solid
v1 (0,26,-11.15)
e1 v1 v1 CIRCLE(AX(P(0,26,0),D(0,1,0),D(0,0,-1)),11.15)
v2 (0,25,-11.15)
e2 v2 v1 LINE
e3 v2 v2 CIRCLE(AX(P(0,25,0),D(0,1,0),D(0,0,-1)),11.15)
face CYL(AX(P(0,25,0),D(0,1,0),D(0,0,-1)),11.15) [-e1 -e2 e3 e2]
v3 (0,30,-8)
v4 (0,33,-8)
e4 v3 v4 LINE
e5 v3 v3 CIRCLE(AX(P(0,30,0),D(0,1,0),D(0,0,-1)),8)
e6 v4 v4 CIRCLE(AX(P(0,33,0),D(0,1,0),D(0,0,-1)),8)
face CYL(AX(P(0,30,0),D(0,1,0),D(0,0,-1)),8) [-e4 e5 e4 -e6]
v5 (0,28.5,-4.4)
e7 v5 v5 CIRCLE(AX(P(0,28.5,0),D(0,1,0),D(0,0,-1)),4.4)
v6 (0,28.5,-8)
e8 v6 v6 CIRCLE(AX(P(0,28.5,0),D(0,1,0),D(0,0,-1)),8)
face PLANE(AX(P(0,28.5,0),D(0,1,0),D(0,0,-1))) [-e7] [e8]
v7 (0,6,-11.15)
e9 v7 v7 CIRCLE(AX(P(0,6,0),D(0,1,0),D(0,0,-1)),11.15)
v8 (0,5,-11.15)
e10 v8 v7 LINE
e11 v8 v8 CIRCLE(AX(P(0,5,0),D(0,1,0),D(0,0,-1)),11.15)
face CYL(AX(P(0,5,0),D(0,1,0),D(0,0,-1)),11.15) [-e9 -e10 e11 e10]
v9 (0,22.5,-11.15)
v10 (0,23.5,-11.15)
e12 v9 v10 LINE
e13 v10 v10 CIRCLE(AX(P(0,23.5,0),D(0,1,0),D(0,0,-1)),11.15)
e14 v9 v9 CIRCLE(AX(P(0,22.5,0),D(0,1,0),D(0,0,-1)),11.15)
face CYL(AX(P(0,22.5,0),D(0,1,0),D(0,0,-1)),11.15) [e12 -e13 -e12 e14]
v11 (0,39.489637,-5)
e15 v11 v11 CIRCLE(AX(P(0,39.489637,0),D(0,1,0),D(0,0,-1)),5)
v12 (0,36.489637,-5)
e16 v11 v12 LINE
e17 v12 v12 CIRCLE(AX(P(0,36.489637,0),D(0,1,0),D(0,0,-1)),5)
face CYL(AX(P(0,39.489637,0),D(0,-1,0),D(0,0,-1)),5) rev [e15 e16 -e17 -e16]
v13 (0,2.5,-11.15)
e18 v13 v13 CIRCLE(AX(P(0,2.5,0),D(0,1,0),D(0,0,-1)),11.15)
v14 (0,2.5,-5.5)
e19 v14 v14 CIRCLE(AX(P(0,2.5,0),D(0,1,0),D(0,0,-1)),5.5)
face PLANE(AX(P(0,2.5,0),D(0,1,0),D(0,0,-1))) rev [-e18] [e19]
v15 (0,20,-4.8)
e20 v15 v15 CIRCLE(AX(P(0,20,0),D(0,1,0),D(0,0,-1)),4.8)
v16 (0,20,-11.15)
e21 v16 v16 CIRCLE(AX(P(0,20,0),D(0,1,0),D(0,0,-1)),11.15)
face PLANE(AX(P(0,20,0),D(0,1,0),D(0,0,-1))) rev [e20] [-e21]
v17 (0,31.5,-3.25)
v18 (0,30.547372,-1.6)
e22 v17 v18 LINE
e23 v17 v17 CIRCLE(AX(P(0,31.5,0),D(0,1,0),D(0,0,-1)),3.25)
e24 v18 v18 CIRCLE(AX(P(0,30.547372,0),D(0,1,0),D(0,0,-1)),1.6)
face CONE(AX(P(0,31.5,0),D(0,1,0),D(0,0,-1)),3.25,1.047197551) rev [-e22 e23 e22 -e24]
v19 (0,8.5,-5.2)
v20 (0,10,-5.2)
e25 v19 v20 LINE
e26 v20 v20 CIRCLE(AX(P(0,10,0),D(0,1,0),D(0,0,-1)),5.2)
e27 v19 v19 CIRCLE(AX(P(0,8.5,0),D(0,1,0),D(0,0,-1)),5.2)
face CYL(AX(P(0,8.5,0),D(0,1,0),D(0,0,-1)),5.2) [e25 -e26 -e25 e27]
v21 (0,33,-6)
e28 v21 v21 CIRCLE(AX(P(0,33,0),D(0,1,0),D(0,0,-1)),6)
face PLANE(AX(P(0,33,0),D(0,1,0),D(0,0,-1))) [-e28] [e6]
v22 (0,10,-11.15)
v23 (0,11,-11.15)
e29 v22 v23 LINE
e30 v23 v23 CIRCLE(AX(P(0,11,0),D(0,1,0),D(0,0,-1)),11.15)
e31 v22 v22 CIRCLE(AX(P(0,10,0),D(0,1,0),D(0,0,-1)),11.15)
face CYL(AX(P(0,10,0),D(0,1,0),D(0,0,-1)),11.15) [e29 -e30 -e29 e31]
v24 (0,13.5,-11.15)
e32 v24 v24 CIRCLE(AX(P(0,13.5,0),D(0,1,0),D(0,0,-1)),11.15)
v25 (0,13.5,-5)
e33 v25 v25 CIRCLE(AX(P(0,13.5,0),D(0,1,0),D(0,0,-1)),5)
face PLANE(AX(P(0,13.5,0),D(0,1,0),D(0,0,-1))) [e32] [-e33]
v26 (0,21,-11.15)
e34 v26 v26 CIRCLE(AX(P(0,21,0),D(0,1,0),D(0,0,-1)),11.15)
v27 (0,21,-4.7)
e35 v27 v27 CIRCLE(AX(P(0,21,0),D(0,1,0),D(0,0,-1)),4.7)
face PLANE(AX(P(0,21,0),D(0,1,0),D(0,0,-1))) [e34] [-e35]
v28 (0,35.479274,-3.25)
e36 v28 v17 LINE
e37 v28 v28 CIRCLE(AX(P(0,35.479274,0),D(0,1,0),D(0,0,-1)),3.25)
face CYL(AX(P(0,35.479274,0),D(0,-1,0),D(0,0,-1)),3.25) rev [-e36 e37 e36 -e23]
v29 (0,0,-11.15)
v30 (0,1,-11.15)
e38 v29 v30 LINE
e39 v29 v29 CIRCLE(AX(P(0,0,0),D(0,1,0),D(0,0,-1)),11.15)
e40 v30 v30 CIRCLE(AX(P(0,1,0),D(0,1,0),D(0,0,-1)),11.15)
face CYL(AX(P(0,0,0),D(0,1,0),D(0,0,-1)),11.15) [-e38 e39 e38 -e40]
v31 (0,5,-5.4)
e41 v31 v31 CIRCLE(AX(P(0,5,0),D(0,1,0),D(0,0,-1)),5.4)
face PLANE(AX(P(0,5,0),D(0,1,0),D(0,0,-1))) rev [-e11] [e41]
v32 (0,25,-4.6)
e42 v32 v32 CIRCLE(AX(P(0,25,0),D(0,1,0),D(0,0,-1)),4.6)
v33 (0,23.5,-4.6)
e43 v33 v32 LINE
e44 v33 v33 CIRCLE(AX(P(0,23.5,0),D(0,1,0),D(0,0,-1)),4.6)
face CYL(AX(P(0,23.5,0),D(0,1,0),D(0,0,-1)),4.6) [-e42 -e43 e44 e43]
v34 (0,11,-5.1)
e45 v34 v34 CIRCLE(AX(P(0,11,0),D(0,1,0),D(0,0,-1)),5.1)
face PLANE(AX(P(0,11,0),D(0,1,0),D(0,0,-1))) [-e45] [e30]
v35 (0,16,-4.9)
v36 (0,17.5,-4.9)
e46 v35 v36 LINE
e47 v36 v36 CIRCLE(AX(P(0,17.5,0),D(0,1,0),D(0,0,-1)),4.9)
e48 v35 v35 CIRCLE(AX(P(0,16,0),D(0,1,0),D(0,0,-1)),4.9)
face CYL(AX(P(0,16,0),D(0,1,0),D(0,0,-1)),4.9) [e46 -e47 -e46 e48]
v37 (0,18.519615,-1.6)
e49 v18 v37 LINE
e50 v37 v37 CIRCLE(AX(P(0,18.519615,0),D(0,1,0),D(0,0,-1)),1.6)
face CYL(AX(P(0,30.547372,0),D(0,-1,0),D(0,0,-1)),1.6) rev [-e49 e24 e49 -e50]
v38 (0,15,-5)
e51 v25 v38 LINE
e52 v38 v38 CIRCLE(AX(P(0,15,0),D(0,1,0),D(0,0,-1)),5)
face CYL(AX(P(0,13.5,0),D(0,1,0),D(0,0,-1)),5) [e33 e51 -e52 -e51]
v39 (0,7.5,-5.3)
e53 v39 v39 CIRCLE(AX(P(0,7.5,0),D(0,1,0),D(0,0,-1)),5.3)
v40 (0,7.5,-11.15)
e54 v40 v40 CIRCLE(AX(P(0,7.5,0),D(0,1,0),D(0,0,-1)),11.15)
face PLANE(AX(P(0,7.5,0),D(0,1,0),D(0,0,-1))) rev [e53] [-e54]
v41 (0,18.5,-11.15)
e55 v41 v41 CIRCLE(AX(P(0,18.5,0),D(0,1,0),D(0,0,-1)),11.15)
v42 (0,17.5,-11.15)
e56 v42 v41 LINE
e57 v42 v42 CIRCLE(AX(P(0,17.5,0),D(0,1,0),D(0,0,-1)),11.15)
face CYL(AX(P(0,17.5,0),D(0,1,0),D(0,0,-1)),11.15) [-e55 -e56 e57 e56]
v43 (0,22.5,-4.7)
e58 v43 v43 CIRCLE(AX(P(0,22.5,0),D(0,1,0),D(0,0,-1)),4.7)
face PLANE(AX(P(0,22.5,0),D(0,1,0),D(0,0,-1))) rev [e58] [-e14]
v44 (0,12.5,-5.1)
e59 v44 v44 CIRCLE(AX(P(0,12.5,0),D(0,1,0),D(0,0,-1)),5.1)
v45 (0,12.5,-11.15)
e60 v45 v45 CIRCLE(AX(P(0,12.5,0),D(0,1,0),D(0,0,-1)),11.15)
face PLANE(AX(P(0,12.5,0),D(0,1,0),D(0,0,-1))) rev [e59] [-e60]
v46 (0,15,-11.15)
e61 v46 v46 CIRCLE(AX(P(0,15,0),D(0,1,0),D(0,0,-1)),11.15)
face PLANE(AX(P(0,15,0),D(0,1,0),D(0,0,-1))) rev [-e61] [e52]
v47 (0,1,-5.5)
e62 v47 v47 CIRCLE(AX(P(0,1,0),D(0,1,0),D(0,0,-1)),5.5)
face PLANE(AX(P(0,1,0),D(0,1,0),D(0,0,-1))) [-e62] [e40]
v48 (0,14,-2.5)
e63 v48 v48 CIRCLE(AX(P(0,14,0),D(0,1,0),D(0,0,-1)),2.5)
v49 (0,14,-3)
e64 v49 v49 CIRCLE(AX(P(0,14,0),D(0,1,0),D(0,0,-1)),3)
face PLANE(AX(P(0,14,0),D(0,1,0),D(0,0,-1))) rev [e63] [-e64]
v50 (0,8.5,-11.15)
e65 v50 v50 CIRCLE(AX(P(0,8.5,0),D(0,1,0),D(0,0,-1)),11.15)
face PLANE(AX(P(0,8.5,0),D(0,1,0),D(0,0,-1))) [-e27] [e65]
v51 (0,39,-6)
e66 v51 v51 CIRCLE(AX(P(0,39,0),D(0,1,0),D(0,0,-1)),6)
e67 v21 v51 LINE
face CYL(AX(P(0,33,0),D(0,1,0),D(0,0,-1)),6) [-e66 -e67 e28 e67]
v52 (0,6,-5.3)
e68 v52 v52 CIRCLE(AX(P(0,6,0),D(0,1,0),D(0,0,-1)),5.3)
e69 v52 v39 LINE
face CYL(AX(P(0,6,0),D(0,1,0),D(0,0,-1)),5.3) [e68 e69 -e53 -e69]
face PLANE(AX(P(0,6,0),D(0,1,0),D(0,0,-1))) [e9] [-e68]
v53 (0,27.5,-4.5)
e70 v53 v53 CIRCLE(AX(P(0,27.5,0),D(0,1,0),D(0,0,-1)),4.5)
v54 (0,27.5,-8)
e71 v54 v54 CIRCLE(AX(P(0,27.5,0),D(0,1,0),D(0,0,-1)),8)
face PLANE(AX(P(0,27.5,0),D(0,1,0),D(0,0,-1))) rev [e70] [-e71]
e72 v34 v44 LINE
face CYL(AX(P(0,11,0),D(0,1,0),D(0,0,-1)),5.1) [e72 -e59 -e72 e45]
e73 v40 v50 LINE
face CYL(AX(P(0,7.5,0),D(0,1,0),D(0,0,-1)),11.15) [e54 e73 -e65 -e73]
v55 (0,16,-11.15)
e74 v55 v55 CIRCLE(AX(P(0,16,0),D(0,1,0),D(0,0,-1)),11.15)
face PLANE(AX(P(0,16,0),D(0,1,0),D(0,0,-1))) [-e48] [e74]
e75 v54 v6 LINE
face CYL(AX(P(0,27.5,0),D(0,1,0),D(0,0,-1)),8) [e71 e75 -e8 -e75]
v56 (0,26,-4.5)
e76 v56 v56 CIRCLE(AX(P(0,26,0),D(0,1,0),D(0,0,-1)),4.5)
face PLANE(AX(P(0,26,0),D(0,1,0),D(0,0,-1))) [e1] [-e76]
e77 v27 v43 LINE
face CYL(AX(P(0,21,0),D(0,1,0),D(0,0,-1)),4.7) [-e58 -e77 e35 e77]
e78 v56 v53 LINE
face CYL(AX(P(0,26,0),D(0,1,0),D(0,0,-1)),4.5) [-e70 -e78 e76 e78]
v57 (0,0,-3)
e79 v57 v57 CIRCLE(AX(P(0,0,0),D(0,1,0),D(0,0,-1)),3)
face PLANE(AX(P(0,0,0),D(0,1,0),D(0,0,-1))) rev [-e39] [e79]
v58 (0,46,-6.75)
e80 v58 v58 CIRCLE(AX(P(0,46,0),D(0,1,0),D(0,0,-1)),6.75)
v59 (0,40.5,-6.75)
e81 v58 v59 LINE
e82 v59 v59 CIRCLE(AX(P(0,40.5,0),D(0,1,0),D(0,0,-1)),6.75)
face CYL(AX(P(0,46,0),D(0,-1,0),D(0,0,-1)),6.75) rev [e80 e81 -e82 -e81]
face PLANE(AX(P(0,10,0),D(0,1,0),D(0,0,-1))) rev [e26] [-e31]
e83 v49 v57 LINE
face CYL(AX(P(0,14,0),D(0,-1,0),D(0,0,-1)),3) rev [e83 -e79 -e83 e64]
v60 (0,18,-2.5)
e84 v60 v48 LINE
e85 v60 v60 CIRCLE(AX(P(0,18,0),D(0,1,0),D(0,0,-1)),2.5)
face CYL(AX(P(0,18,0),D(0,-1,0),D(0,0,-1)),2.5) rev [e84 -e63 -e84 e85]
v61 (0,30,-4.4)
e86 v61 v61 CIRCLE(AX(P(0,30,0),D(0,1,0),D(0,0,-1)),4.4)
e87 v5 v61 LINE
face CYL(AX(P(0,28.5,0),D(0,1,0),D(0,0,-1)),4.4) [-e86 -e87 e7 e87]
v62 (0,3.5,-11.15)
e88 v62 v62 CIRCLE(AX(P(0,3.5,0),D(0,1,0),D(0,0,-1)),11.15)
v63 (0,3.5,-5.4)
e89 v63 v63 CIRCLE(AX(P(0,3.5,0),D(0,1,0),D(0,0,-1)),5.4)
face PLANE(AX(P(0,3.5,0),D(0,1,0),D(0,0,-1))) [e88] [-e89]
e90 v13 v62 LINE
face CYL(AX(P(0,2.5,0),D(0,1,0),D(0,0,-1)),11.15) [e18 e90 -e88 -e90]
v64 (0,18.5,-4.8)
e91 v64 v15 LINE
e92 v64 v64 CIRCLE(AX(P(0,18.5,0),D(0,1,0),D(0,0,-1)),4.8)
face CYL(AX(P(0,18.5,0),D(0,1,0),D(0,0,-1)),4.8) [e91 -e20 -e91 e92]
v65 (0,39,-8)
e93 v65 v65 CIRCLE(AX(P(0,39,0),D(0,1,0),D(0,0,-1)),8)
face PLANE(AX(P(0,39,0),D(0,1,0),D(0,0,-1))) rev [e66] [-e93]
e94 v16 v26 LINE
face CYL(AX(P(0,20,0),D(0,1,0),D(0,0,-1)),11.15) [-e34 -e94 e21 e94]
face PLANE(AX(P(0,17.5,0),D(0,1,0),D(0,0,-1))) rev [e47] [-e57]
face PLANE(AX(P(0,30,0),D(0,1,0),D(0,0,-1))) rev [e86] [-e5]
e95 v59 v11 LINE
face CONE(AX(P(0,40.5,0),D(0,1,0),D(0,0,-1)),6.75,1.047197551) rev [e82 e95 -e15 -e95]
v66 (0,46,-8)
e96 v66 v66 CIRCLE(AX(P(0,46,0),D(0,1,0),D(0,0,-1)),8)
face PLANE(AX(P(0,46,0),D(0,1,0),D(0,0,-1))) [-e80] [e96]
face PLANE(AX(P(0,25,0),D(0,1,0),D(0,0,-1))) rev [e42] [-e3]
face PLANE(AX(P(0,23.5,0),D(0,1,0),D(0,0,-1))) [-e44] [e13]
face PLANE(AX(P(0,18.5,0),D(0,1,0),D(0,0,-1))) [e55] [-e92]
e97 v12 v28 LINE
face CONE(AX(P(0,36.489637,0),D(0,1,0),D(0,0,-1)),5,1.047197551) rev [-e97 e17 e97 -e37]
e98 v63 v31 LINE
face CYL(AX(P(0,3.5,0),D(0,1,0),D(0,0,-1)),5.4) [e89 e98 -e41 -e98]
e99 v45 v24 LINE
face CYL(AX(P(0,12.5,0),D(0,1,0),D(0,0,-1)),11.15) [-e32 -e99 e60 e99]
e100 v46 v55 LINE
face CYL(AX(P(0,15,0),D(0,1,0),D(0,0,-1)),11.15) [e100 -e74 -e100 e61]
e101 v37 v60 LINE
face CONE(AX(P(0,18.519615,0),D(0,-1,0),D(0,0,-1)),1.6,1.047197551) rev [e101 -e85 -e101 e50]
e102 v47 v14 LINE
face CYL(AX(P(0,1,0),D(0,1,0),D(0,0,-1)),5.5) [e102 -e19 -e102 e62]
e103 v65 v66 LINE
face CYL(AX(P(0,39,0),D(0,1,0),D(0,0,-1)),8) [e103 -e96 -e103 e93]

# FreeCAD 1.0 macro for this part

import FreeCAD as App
import Part
import Sketcher

V = App.Vector
Q = App.Units.Quantity


def add_polygon(sketch, points):
    """Adds a closed chain of lines whose ends are joined by coincident constraints."""
    first, n = sketch.GeometryCount, len(points)
    for a, b in zip(points, points[1:] + points[:1]):
        sketch.addGeometry(Part.LineSegment(App.Vector(*a, 0), App.Vector(*b, 0)), False)
    for i in range(n):
        sketch.addConstraint(Sketcher.Constraint("Coincident", first + i, 2, first + (i + 1) % n, 1))

doc = App.newDocument("Part")
body = doc.addObject("PartDesign::Body", "Body")

# Sketch on XY plane
sketch1 = body.newObject("Sketcher::SketchObject", "Sketch")
sketch1.AttachmentSupport = (doc.getObject("XY_Plane"), [""])
sketch1.MapMode = "FlatFace"
add_polygon(sketch1, [(0, 0), (11.2, 0), (11.2, 1), (5.5, 1), (5.5, 2.5), (11.2, 2.5), (11.2, 3.5), (5.4, 3.5), (5.4, 5), (11.2, 5), (11.2, 6), (5.3, 6), (5.3, 7.5), (11.2, 7.5), (11.2, 8.5), (5.2, 8.5), (5.2, 10), (11.2, 10), (11.2, 11), (5.1, 11), (5.1, 12.5), (11.2, 12.5), (11.2, 13.5), (5, 13.5), (5, 15), (11.2, 15), (11.2, 16), (4.9, 16), (4.9, 17.5), (11.2, 17.5), (11.2, 18.5), (4.8, 18.5), (4.8, 20), (11.2, 20), (11.2, 21), (4.7, 21), (4.7, 22.5), (11.2, 22.5), (11.2, 23.5), (4.6, 23.5), (4.6, 25), (11.2, 25), (11.2, 26), (4.5, 26), (4.5, 27.5), (8, 27.5), (8, 28.5), (4.4, 28.5), (4.4, 30), (8, 30), (8, 33), (6, 33), (6, 39), (8, 39), (8, 46), (0, 46)])  # lines 0-55
sketch1.addConstraint([
    Sketcher.Constraint("Horizontal", 0),
    Sketcher.Constraint("Vertical", 1),
    Sketcher.Constraint("Horizontal", 2),
    Sketcher.Constraint("Vertical", 3),
    Sketcher.Constraint("Horizontal", 4),
    Sketcher.Constraint("Vertical", 5),
    Sketcher.Constraint("Horizontal", 6),
    Sketcher.Constraint("Vertical", 7),
    Sketcher.Constraint("Horizontal", 8),
    Sketcher.Constraint("Vertical", 9),
    Sketcher.Constraint("Horizontal", 10),
    Sketcher.Constraint("Vertical", 11),
    Sketcher.Constraint("Horizontal", 12),
    Sketcher.Constraint("Vertical", 13),
    Sketcher.Constraint("Horizontal", 14),
    Sketcher.Constraint("Vertical", 15),
    Sketcher.Constraint("Horizontal", 16),
    Sketcher.Constraint("Vertical", 17),
    Sketcher.Constraint("Horizontal", 18),
    Sketcher.Constraint("Vertical", 19),
    Sketcher.Constraint("Horizontal", 20),
    Sketcher.Constraint("Vertical", 21),
    Sketcher.Constraint("Horizontal", 22),
    Sketcher.Constraint("Vertical", 23),
    Sketcher.Constraint("Horizontal", 24),
    Sketcher.Constraint("Vertical", 25),
    Sketcher.Constraint("Horizontal", 26),
    Sketcher.Constraint("Vertical", 27),
    Sketcher.Constraint("Horizontal", 28),
    Sketcher.Constraint("Vertical", 29),
    Sketcher.Constraint("Horizontal", 30),
    Sketcher.Constraint("Vertical", 31),
    Sketcher.Constraint("Horizontal", 32),
    Sketcher.Constraint("Vertical", 33),
    Sketcher.Constraint("Horizontal", 34),
    Sketcher.Constraint("Vertical", 35),
    Sketcher.Constraint("Horizontal", 36),
    Sketcher.Constraint("Vertical", 37),
    Sketcher.Constraint("Horizontal", 38),
    Sketcher.Constraint("Vertical", 39),
    Sketcher.Constraint("Horizontal", 40),
    Sketcher.Constraint("Vertical", 41),
    Sketcher.Constraint("Horizontal", 42),
    Sketcher.Constraint("Vertical", 43),
    Sketcher.Constraint("Horizontal", 44),
    Sketcher.Constraint("Vertical", 45),
    Sketcher.Constraint("Horizontal", 46),
    Sketcher.Constraint("Vertical", 47),
    Sketcher.Constraint("Horizontal", 48),
    Sketcher.Constraint("Vertical", 49),
    Sketcher.Constraint("Horizontal", 50),
    Sketcher.Constraint("Vertical", 51),
    Sketcher.Constraint("Horizontal", 52),
    Sketcher.Constraint("Vertical", 53),
    Sketcher.Constraint("Horizontal", 54),
    Sketcher.Constraint("Vertical", 55),
    Sketcher.Constraint("Coincident", 55, 2, -1, 1),
    Sketcher.Constraint("Vertical", 1, 2, 4, 2),
    Sketcher.Constraint("Vertical", 5, 2, 8, 2),
    Sketcher.Constraint("Vertical", 9, 2, 12, 2),
    Sketcher.Constraint("Vertical", 13, 2, 16, 2),
    Sketcher.Constraint("Vertical", 17, 2, 20, 2),
    Sketcher.Constraint("Vertical", 21, 2, 24, 2),
    Sketcher.Constraint("Vertical", 25, 2, 28, 2),
    Sketcher.Constraint("Vertical", 29, 2, 32, 2),
    Sketcher.Constraint("Vertical", 33, 2, 36, 2),
    Sketcher.Constraint("Vertical", 37, 2, 40, 2),
    Sketcher.Constraint("Vertical", 45, 2, 48, 2),
    Sketcher.Constraint("Vertical", 49, 2, 52, 2),
    Sketcher.Constraint("Equal", 1, 5),
    Sketcher.Constraint("Equal", 3, 7),
    Sketcher.Constraint("Equal", 5, 9),
    Sketcher.Constraint("Equal", 7, 11),
    Sketcher.Constraint("Equal", 9, 13),
    Sketcher.Constraint("Equal", 11, 15),
    Sketcher.Constraint("Equal", 13, 17),
    Sketcher.Constraint("Equal", 15, 19),
    Sketcher.Constraint("Equal", 17, 21),
    Sketcher.Constraint("Equal", 19, 23),
    Sketcher.Constraint("Equal", 21, 25),
    Sketcher.Constraint("Equal", 23, 27),
    Sketcher.Constraint("Equal", 25, 29),
    Sketcher.Constraint("Equal", 27, 31),
    Sketcher.Constraint("Equal", 29, 33),
    Sketcher.Constraint("Equal", 31, 35),
    Sketcher.Constraint("Equal", 33, 37),
    Sketcher.Constraint("Equal", 35, 39),
    Sketcher.Constraint("Equal", 37, 41),
    Sketcher.Constraint("Equal", 39, 43),
    Sketcher.Constraint("Equal", 41, 45),
    Sketcher.Constraint("Equal", 43, 47),
    Sketcher.Constraint("DistanceX", 50, 2, 50, 1, Q("2 mm")),
    Sketcher.Constraint("DistanceX", 54, 2, 54, 1, Q("8 mm")),
    Sketcher.Constraint("DistanceY", 1, 1, 1, 2, Q("1 mm")),
    Sketcher.Constraint("DistanceY", 49, 1, 49, 2, Q("3 mm")),
    Sketcher.Constraint("DistanceY", 51, 1, 51, 2, Q("6 mm")),
    Sketcher.Constraint("DistanceY", 53, 1, 53, 2, Q("7 mm")),
    Sketcher.Constraint("DistanceY", 55, 2, 55, 1, Q("46 mm")),
    Sketcher.Constraint("DistanceX", 44, 1, 44, 2, Q("3.5 mm")),
    Sketcher.Constraint("DistanceX", 46, 2, 46, 1, Q("3.6 mm")),
    Sketcher.Constraint("DistanceX", -1, 1, 22, 2, Q("5 mm")),
    Sketcher.Constraint("DistanceX", 0, 1, 0, 2, Q("11.15 mm")),
    Sketcher.Constraint("DistanceX", 2, 2, 2, 1, Q("5.65 mm")),
    Sketcher.Constraint("DistanceX", 6, 2, 6, 1, Q("5.75 mm")),
    Sketcher.Constraint("DistanceX", 10, 2, 10, 1, Q("5.85 mm")),
    Sketcher.Constraint("DistanceX", 14, 2, 14, 1, Q("5.95 mm")),
    Sketcher.Constraint("DistanceX", 18, 2, 18, 1, Q("6.05 mm")),
    Sketcher.Constraint("DistanceX", 26, 2, 26, 1, Q("6.25 mm")),
    Sketcher.Constraint("DistanceX", 30, 2, 30, 1, Q("6.35 mm")),
    Sketcher.Constraint("DistanceX", 34, 2, 34, 1, Q("6.45 mm")),
    Sketcher.Constraint("DistanceX", 38, 2, 38, 1, Q("6.55 mm")),
])
revolution = body.newObject("PartDesign::Revolution", "Revolution")
revolution.Profile = sketch1
revolution.ReferenceAxis = (sketch1, ["V_Axis"])
revolution.Angle = 360

# Sketch on XY plane
sketch2 = body.newObject("Sketcher::SketchObject", "Sketch001")
sketch2.AttachmentSupport = (doc.getObject("XY_Plane"), [""])
sketch2.MapMode = "FlatFace"
add_polygon(sketch2, [(6.8, 46), (0, 46), (0, 0), (3, 0), (3, 14), (2.5, 14), (2.5, 18), (1.6, 18.5), (1.6, 30.5), (3.2, 31.5), (3.2, 35.5), (5, 36.5), (5, 39.5), (6.8, 40.5)])  # lines 0-13
sketch2.addConstraint([
    Sketcher.Constraint("Horizontal", 0),
    Sketcher.Constraint("Vertical", 1),
    Sketcher.Constraint("Horizontal", 2),
    Sketcher.Constraint("Vertical", 3),
    Sketcher.Constraint("Horizontal", 4),
    Sketcher.Constraint("Vertical", 5),
    Sketcher.Constraint("Vertical", 7),
    Sketcher.Constraint("Vertical", 9),
    Sketcher.Constraint("Vertical", 11),
    Sketcher.Constraint("Vertical", 13),
    Sketcher.Constraint("Coincident", 1, 2, -1, 1),
    Sketcher.Constraint("Parallel", 8, 10),
    Sketcher.Constraint("Parallel", 10, 12),
    Sketcher.Constraint("Equal", 2, 11),
    Sketcher.Constraint("Equal", 10, 12),
    Sketcher.Constraint("DistanceX", 2, 1, 2, 2, Q("3 mm")),
    Sketcher.Constraint("DistanceY", 1, 2, 1, 1, Q("46 mm")),
    Sketcher.Constraint("DistanceY", 3, 1, 3, 2, Q("14 mm")),
    Sketcher.Constraint("DistanceY", 5, 1, 5, 2, Q("4 mm")),
    Sketcher.Constraint("Angle", 6, Q("150 deg")),
    Sketcher.Constraint("Angle", 8, Q("30 deg")),
    Sketcher.Constraint("DistanceX", 4, 2, 4, 1, Q("0.5 mm")),
    Sketcher.Constraint("DistanceY", 13, 1, 13, 2, Q("5.5 mm")),
    Sketcher.Constraint("DistanceX", -1, 1, 10, 2, Q("5 mm")),
    Sketcher.Constraint("DistanceY", 8, 2, 12, 2, Q("9 mm")),
    Sketcher.Constraint("DistanceX", 0, 2, 0, 1, Q("6.75 mm")),
    Sketcher.Constraint("DistanceX", -1, 1, 6, 2, Q("1.6 mm")),
])
groove = body.newObject("PartDesign::Groove", "Groove")
groove.Profile = sketch2
groove.ReferenceAxis = (sketch2, ["V_Axis"])
groove.Angle = 360

doc.recompute()
